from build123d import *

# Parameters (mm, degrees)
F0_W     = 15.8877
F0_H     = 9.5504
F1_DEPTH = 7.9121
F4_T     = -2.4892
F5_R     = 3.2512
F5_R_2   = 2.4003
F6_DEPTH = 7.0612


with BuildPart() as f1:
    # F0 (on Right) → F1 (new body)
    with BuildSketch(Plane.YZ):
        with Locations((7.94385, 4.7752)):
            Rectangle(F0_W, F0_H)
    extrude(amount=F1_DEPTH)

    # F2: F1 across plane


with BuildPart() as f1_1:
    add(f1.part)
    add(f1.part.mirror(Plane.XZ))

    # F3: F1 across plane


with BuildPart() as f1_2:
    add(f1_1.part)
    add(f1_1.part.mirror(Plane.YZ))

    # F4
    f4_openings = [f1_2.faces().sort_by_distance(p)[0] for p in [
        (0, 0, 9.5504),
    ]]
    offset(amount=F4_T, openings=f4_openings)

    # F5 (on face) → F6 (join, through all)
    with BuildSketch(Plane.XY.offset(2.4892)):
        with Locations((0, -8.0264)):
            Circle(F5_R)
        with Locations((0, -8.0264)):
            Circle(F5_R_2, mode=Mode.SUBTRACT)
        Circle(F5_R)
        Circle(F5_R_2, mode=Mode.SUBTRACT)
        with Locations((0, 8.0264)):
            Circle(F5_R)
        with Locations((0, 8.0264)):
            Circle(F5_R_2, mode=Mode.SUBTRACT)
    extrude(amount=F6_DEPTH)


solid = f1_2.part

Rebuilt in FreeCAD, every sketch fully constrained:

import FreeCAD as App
import Part
import Sketcher
from FreeCAD import Vector
Q = App.Units.Quantity


def faces_at(feature, points):
    """Names of the faces that lie closest to the given points."""
    faces = feature.Shape.Faces
    near = lambda p: min(range(len(faces)), key=lambda i: faces[i].distToShape(Part.Vertex(*p))[0])
    return sorted({f"Face{near(p) + 1}" for p in points})


def add_polygon(sketch, points):
    """Adds a closed chain of lines whose ends are joined by coincident constraints."""
    first, n = sketch.GeometryCount, len(points)
    for a, b in zip(points, points[1:] + points[:1]):
        sketch.addGeometry(Part.LineSegment(App.Vector(*a, 0), App.Vector(*b, 0)), False)
    for i in range(n):
        sketch.addConstraint(Sketcher.Constraint("Coincident", first + i, 2, first + (i + 1) % n, 1))

doc = App.newDocument("Part")
body = doc.addObject("PartDesign::Body", "Body")

sketch1 = body.newObject("Sketcher::SketchObject", "Sketch")
sketch1.AttachmentSupport = (doc.getObject("YZ_Plane"), [""])
sketch1.MapMode = "FlatFace"
add_polygon(sketch1, [(0, 10), (0, 0), (16, 0), (16, 10)])
sketch1.addConstraint([
    Sketcher.Constraint("Vertical", 0),
    Sketcher.Constraint("Horizontal", 1),
    Sketcher.Constraint("Vertical", 2),
    Sketcher.Constraint("Horizontal", 3),
    Sketcher.Constraint("Coincident", 0, 2, -1, 1),
    Sketcher.Constraint("DistanceY", 0, 2, 0, 1, Q("0.376 in")),
    Sketcher.Constraint("DistanceX", 1, 1, 1, 2, Q("0.6255 in")),
])
pad1 = body.newObject("PartDesign::Pad", "Pad")
pad1.Profile = sketch1
pad1.Length = Q("0.3115 in")
body2 = doc.addObject("PartDesign::Body", "Body001")
doc.recompute()

body2.BaseFeature = body
doc.recompute()

mirroring = doc.addObject("Part::Mirroring", "Mirroring")
mirroring.Source = body
mirroring.Base = Vector(0, 0, 0)
mirroring.Normal = Vector(0, -1, 0)
body3 = doc.addObject("PartDesign::Body", "Body002")
body3.BaseFeature = mirroring
boolean = body2.newObject("PartDesign::Boolean", "Boolean")
boolean.Type = "Fuse"
boolean.addObjects([body3])
doc.recompute()
body4 = doc.addObject("PartDesign::Body", "Body003")
doc.recompute()

body4.BaseFeature = body2
doc.recompute()

mirroring2 = doc.addObject("Part::Mirroring", "Mirroring001")
mirroring2.Source = body2
mirroring2.Base = Vector(0, 0, 0)
mirroring2.Normal = Vector(1, 0, 0)
body5 = doc.addObject("PartDesign::Body", "Body004")
body5.BaseFeature = mirroring2
boolean2 = body4.newObject("PartDesign::Boolean", "Boolean001")
boolean2.Type = "Fuse"
boolean2.addObjects([body5])
doc.recompute()

thickness = body4.newObject("PartDesign::Thickness", "Thickness")
thickness.Base = (boolean2, faces_at(boolean2, [(0, 0, 9.55)]))
thickness.Value = Q("0.098 in")
thickness.Reversed = True
thickness.Join = "Arc"

sketch2 = body4.newObject("Sketcher::SketchObject", "Sketch001")
sketch2.AttachmentSupport = (doc.getObject("XY_Plane003"), [""])
sketch2.MapMode = "FlatFace"
sketch2.AttachmentOffset = App.Placement(Vector(0, 0, 0.098 * 25.4), App.Rotation())
sketch2.addGeometry([
    Part.Circle(Vector(0, -8, 0), Vector(0, 0, 1), 3.3),
    Part.Circle(Vector(0, -8, 0), Vector(0, 0, 1), 2.4),
    Part.Circle(Vector(0, 0, 0), Vector(0, 0, 1), 3.3),
    Part.Circle(Vector(0, 0, 0), Vector(0, 0, 1), 2.4),
    Part.Circle(Vector(0, 8, 0), Vector(0, 0, 1), 3.3),
    Part.Circle(Vector(0, 8, 0), Vector(0, 0, 1), 2.4),
], False)
sketch2.addConstraint([
    Sketcher.Constraint("Coincident", 2, 3, -1, 1),
    Sketcher.Constraint("Coincident", 3, 3, -1, 1),
    Sketcher.Constraint("Coincident", 1, 3, 0, 3),
    Sketcher.Constraint("Coincident", 5, 3, 4, 3),
    Sketcher.Constraint("Equal", 0, 2),
    Sketcher.Constraint("Equal", 1, 3),
    Sketcher.Constraint("Equal", 2, 4),
    Sketcher.Constraint("Equal", 3, 5),
    Sketcher.Constraint("Symmetric", 0, 3, 4, 3, -1, 1),
    Sketcher.Constraint("PointOnObject", 0, 3, -2),
    Sketcher.Constraint("Diameter", 0, Q("0.256 in")),
    Sketcher.Constraint("Diameter", 1, Q("0.189 in")),
    Sketcher.Constraint("DistanceY", 0, 3, -1, 1, Q("0.316 in")),
])
pad2 = body4.newObject("PartDesign::Pad", "Pad001")
pad2.Profile = sketch2
pad2.Length = Q("0.278 in")
mirroring.Visibility = False
mirroring2.Visibility = False

doc.recompute()
